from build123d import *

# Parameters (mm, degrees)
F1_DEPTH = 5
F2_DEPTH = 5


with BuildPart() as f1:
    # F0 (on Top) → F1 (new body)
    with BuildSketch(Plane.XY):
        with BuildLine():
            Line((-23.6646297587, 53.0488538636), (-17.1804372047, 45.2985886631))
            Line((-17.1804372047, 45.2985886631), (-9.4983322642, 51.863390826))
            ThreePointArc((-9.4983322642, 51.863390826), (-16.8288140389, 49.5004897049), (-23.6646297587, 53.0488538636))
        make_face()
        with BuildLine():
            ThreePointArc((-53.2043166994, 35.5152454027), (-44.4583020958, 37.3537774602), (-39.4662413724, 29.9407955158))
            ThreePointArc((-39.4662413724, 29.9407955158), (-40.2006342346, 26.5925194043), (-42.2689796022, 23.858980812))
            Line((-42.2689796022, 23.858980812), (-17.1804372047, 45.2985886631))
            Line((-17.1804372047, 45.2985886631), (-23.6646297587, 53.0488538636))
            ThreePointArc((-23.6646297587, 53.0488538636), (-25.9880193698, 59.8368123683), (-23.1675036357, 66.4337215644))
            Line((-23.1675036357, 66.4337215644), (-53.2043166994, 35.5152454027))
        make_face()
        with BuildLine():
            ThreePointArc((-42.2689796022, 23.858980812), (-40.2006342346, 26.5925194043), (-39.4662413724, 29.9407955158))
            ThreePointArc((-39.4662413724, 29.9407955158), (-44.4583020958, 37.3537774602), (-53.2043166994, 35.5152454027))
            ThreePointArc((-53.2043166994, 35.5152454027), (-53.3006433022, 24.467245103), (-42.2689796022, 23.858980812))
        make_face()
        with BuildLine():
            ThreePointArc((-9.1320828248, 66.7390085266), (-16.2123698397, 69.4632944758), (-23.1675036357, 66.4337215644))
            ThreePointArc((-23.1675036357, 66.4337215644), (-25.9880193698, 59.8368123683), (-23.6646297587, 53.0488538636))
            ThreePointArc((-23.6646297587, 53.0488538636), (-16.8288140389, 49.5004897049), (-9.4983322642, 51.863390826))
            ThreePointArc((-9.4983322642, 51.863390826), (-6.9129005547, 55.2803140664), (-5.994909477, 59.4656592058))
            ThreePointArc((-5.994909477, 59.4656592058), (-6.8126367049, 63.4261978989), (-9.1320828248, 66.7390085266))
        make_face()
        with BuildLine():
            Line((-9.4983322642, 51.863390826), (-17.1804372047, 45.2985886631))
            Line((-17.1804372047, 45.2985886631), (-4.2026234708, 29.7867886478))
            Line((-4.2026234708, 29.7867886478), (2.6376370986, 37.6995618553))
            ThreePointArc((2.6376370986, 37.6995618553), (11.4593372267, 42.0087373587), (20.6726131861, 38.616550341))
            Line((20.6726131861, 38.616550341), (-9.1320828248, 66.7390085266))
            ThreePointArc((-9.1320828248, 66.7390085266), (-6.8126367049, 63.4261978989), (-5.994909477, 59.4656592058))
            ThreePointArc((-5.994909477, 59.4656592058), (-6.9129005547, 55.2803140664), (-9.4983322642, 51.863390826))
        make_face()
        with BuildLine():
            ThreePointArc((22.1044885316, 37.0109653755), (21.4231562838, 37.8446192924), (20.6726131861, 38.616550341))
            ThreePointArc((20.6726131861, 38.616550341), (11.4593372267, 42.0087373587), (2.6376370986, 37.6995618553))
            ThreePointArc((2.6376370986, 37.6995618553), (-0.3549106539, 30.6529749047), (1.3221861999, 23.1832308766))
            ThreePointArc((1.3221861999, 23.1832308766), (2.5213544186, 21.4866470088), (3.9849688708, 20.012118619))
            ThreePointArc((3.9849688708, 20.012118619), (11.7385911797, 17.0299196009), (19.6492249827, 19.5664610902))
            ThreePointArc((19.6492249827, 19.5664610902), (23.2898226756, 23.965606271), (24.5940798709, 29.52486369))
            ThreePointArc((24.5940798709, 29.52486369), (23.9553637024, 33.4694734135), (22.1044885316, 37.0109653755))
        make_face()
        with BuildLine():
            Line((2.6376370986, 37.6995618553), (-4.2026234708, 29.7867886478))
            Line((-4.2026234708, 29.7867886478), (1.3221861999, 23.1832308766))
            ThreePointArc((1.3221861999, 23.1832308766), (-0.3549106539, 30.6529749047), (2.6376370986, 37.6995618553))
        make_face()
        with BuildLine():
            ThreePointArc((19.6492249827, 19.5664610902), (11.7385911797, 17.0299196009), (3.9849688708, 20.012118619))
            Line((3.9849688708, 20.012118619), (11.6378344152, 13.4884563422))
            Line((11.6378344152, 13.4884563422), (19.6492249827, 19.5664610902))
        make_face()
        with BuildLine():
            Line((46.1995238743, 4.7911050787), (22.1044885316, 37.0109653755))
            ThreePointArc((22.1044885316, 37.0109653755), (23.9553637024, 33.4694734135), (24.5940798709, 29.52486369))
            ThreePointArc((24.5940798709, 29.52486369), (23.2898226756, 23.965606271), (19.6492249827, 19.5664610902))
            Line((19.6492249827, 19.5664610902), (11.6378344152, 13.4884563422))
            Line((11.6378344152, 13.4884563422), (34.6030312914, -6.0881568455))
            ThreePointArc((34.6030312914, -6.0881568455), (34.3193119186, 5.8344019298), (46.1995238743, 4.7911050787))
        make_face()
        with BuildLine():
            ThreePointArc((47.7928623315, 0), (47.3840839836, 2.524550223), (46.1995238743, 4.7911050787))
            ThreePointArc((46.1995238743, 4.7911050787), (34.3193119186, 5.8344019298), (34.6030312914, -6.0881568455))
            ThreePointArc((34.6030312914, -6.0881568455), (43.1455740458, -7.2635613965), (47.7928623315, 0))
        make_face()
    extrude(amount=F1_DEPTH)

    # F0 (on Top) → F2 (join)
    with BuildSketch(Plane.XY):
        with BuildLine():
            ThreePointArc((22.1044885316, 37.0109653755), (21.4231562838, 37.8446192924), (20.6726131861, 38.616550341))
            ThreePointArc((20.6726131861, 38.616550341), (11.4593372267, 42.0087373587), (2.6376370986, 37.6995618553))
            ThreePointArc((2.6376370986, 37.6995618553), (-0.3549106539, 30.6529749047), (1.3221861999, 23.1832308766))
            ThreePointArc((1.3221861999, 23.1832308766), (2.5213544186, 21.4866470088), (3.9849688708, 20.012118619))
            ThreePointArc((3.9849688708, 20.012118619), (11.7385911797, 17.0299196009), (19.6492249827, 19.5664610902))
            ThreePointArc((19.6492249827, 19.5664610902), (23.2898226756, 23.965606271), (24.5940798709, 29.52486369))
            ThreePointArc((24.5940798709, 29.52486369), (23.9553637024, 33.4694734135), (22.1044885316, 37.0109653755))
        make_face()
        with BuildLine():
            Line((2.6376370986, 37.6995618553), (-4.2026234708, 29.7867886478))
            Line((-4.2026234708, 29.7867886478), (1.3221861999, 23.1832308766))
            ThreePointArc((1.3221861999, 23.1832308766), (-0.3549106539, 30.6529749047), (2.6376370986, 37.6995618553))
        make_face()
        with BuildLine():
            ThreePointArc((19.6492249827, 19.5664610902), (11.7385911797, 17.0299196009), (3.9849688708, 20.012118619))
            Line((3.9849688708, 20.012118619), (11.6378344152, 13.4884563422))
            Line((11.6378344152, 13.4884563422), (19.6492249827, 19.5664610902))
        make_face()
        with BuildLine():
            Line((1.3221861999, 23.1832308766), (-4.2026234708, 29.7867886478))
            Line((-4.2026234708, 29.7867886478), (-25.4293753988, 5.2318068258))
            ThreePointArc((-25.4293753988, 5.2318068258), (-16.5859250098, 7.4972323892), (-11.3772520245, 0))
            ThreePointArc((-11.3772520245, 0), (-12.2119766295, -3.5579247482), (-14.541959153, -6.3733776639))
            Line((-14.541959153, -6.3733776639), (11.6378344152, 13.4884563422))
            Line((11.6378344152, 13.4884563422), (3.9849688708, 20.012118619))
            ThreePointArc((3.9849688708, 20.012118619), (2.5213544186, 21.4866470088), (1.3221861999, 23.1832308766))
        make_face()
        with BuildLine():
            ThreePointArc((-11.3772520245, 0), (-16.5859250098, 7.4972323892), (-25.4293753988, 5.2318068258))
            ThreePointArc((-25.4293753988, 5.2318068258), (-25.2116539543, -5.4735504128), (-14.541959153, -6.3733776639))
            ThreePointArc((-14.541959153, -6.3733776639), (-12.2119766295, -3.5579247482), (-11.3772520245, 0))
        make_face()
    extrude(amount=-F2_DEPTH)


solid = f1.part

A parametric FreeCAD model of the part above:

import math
import FreeCAD as App
import Part
import Sketcher
Q = App.Units.Quantity

doc = App.newDocument("Part")
params = doc.addObject("Spreadsheet::Sheet", "Params")
for row, (alias, value) in enumerate([
    ("sketch1_radius", "8 mm"),
    ("sketch1_radius2", "10 mm"),
    ("sketch1_radius3", "12.5 mm"),
    ("pad1_length", "5 mm"),
    ("sketch2_radius", "8 mm"),
    ("sketch2_radius2", "12.5 mm"),
    ("pad2_length", "5 mm"),
], start=1):
    params.set(f"A{row}", alias)
    params.set(f"B{row}", "=" + value)
    params.setAlias(f"B{row}", alias)

body = doc.addObject("PartDesign::Body", "Body")

# Sketch on XY plane
sketch1 = doc.addObject("Sketcher::SketchObject", "Sketch")
body.addObject(sketch1)
sketch1.AttachmentSupport = (doc.XY_Plane, [""])
sketch1.MapMode = "FlatFace"
sketch1.addGeometry(Part.LineSegment(App.Vector(-23.2, 66.4, 0), App.Vector(-53.2, 35.5, 0)), False)
sketch1.addGeometry(Part.ArcOfCircle(Part.Circle(App.Vector(-47.5, 29.9, 0), App.Vector(0, 0, 1), 8), math.radians(136), math.radians(311)), False)
sketch1.addGeometry(Part.LineSegment(App.Vector(-42.3, 23.9, 0), App.Vector(-17.2, 45.3, 0)), False)
sketch1.addGeometry(Part.LineSegment(App.Vector(-17.2, 45.3, 0), App.Vector(-4.2, 29.8, 0)), False)
sketch1.addGeometry(Part.LineSegment(App.Vector(-4.2, 29.8, 0), App.Vector(1.3, 23.2, 0)), False)
sketch1.addGeometry(Part.ArcOfCircle(Part.Circle(App.Vector(12.1, 29.5, 0), App.Vector(0, 0, 1), 12.5), math.radians(-149.51), math.radians(-130.45)), False)
sketch1.addGeometry(Part.LineSegment(App.Vector(4, 20, 0), App.Vector(11.6, 13.5, 0)), False)
sketch1.addGeometry(Part.LineSegment(App.Vector(11.6, 13.5, 0), App.Vector(34.6, -6.1, 0)), False)
sketch1.addGeometry(Part.ArcOfCircle(Part.Circle(App.Vector(39.8, 0, 0), App.Vector(0, 0, 1), 8), math.radians(-130), math.radians(0)), False)
sketch1.addGeometry(Part.ArcOfCircle(Part.Circle(App.Vector(39.8, 0, 0), App.Vector(0, 0, 1), 8), math.radians(0), math.radians(37)), False)
sketch1.addGeometry(Part.LineSegment(App.Vector(46.2, 4.8, 0), App.Vector(22.1, 37, 0)), False)
sketch1.addGeometry(Part.ArcOfCircle(Part.Circle(App.Vector(12.1, 29.5, 0), App.Vector(0, 0, 1), 12.5), math.radians(36.79), math.radians(46.66)), False)
sketch1.addGeometry(Part.LineSegment(App.Vector(20.7, 38.6, 0), App.Vector(-9.1, 66.7, 0)), False)
sketch1.addGeometry(Part.ArcOfCircle(Part.Circle(App.Vector(-16, 59.5, 0), App.Vector(0, 0, 1), 10), math.radians(47), math.radians(136)), False)
sketch1.addConstraint(Sketcher.Constraint("Tangent", 0, 2, 1, 1))
sketch1.addConstraint(Sketcher.Constraint("Tangent", 1, 2, 2, 1))
sketch1.addConstraint(Sketcher.Constraint("Coincident", 2, 2, 3, 1))
sketch1.addConstraint(Sketcher.Constraint("Coincident", 3, 2, 4, 1))
sketch1.addConstraint(Sketcher.Constraint("Coincident", 4, 2, 5, 1))
sketch1.addConstraint(Sketcher.Constraint("Tangent", 5, 2, 6, 1))
sketch1.addConstraint(Sketcher.Constraint("Coincident", 6, 2, 7, 1))
sketch1.addConstraint(Sketcher.Constraint("Tangent", 7, 2, 8, 1))
sketch1.addConstraint(Sketcher.Constraint("Tangent", 8, 2, 9, 1))
sketch1.addConstraint(Sketcher.Constraint("Tangent", 9, 2, 10, 1))
sketch1.addConstraint(Sketcher.Constraint("Tangent", 10, 2, 11, 1))
sketch1.addConstraint(Sketcher.Constraint("Tangent", 11, 2, 12, 1))
sketch1.addConstraint(Sketcher.Constraint("Tangent", 12, 2, 13, 1))
sketch1.addConstraint(Sketcher.Constraint("Tangent", 13, 2, 0, 1))
sketch1.addConstraint(Sketcher.Constraint("Coincident", 11, 3, 5, 3))
sketch1.addConstraint(Sketcher.Constraint("Equal", 1, 8))
sketch1.addConstraint(Sketcher.Constraint("Equal", 8, 9))
sketch1.addConstraint(Sketcher.Constraint("Equal", 5, 11))
sketch1.addConstraint(Sketcher.Constraint("PointOnObject", 8, 3, -1))
sketch1.addConstraint(Sketcher.Constraint("PointOnObject", 8, 2, -1))
sketch1.addConstraint(Sketcher.Constraint("Parallel", 3, 4))
sketch1.addConstraint(Sketcher.Constraint("Parallel", 6, 7))
sketch1.addConstraint(Sketcher.Constraint("Radius", 1, Q("8 mm")))
sketch1.addConstraint(Sketcher.Constraint("Radius", 13, Q("10 mm")))
sketch1.addConstraint(Sketcher.Constraint("Radius", 5, Q("12.5 mm")))
sketch1.addConstraint(Sketcher.Constraint("DistanceY", 3, 2, 2, 2, Q("15.5118 mm")))
sketch1.addConstraint(Sketcher.Constraint("DistanceY", 11, 3, 10, 2, Q("7.486102 mm")))
sketch1.addConstraint(Sketcher.Constraint("Distance", 2, Q("33.00139 mm")))
sketch1.addConstraint(Sketcher.Constraint("Distance", 6, Q("10.056069 mm")))
sketch1.addConstraint(Sketcher.Constraint("Distance", 7, Q("30.176879 mm")))
sketch1.addConstraint(Sketcher.Constraint("DistanceX", 1, 3, -1, 1, Q("47.466241 mm")))
sketch1.addConstraint(Sketcher.Constraint("DistanceX", -1, 1, 5, 3, Q("12.09408 mm")))
sketch1.addConstraint(Sketcher.Constraint("DistanceX", 13, 3, -1, 1, Q("15.994909 mm")))
sketch1.addConstraint(Sketcher.Constraint("DistanceY", -1, 1, 13, 3, Q("59.465659 mm")))
sketch1.addConstraint(Sketcher.Constraint("DistanceX", 1, 2, -1, 1, Q("42.26898 mm")))
sketch1.addConstraint(Sketcher.Constraint("DistanceY", -1, 1, 1, 2, Q("23.858981 mm")))
sketch1.addConstraint(Sketcher.Constraint("DistanceY", -1, 1, 4, 2, Q("23.183231 mm")))
sketch1.setExpression("Constraints[22]", "Params.sketch1_radius")
sketch1.setExpression("Constraints[23]", "Params.sketch1_radius2")
sketch1.setExpression("Constraints[24]", "Params.sketch1_radius3")
pad1 = doc.addObject("PartDesign::Pad", "Pad")
body.addObject(pad1)
pad1.Profile = sketch1
pad1.setExpression("Length", "Params.pad1_length")

# Sketch on XY plane
sketch2 = doc.addObject("Sketcher::SketchObject", "Sketch001")
body.addObject(sketch2)
sketch2.AttachmentSupport = (doc.XY_Plane, [""])
sketch2.MapMode = "FlatFace"
sketch2.addGeometry(Part.ArcOfCircle(Part.Circle(App.Vector(12.1, 29.5, 0), App.Vector(0, 0, 1), 12.5), math.radians(36.79), math.radians(46.66)), False)
sketch2.addGeometry(Part.ArcOfCircle(Part.Circle(App.Vector(12.1, 29.5, 0), App.Vector(0, 0, 1), 12.5), math.radians(47), math.radians(139)), False)
sketch2.addGeometry(Part.LineSegment(App.Vector(2.6, 37.7, 0), App.Vector(-4.2, 29.8, 0)), False)
sketch2.addGeometry(Part.LineSegment(App.Vector(-4.2, 29.8, 0), App.Vector(-25.4, 5.2, 0)), False)
sketch2.addGeometry(Part.ArcOfCircle(Part.Circle(App.Vector(-19.4, 0, 0), App.Vector(0, 0, 1), 8), math.radians(139), math.radians(307)), False)
sketch2.addGeometry(Part.LineSegment(App.Vector(-14.5, -6.4, 0), App.Vector(11.6, 13.5, 0)), False)
sketch2.addGeometry(Part.LineSegment(App.Vector(11.6, 13.5, 0), App.Vector(19.6, 19.6, 0)), False)
sketch2.addGeometry(Part.ArcOfCircle(Part.Circle(App.Vector(12.1, 29.5, 0), App.Vector(0, 0, 1), 12.5), math.radians(-53), math.radians(0)), False)
sketch2.addGeometry(Part.ArcOfCircle(Part.Circle(App.Vector(12.1, 29.5, 0), App.Vector(0, 0, 1), 12.5), math.radians(0), math.radians(37)), False)
sketch2.addConstraint(Sketcher.Constraint("Tangent", 0, 2, 1, 1))
sketch2.addConstraint(Sketcher.Constraint("Tangent", 1, 2, 2, 1))
sketch2.addConstraint(Sketcher.Constraint("Coincident", 2, 2, 3, 1))
sketch2.addConstraint(Sketcher.Constraint("Tangent", 3, 2, 4, 1))
sketch2.addConstraint(Sketcher.Constraint("Tangent", 4, 2, 5, 1))
sketch2.addConstraint(Sketcher.Constraint("Coincident", 5, 2, 6, 1))
sketch2.addConstraint(Sketcher.Constraint("Tangent", 6, 2, 7, 1))
sketch2.addConstraint(Sketcher.Constraint("Tangent", 7, 2, 8, 1))
sketch2.addConstraint(Sketcher.Constraint("Tangent", 8, 2, 0, 1))
sketch2.addConstraint(Sketcher.Constraint("Coincident", 7, 3, 0, 3))
sketch2.addConstraint(Sketcher.Constraint("Equal", 0, 1))
sketch2.addConstraint(Sketcher.Constraint("PointOnObject", 4, 3, -1))
sketch2.addConstraint(Sketcher.Constraint("Parallel", 2, 3))
sketch2.addConstraint(Sketcher.Constraint("Parallel", 5, 6))
sketch2.addConstraint(Sketcher.Constraint("Horizontal", 8, 3, 7, 2))
sketch2.addConstraint(Sketcher.Constraint("Radius", 4, Q("8 mm")))
sketch2.addConstraint(Sketcher.Constraint("Radius", 0, Q("12.5 mm")))
sketch2.addConstraint(Sketcher.Constraint("Distance", 2, Q("10.4595 mm")))
sketch2.addConstraint(Sketcher.Constraint("DistanceY", 1, 3, 1, 2, Q("8.174698 mm")))
sketch2.addConstraint(Sketcher.Constraint("DistanceY", 7, 2, 8, 2, Q("7.486102 mm")))
sketch2.addConstraint(Sketcher.Constraint("Distance", 6, Q("10.056069 mm")))
sketch2.addConstraint(Sketcher.Constraint("DistanceX", -1, 1, 0, 3, Q("12.09408 mm")))
sketch2.addConstraint(Sketcher.Constraint("DistanceY", -1, 1, 0, 2, Q("38.61655 mm")))
sketch2.addConstraint(Sketcher.Constraint("DistanceY", -1, 1, 1, 2, Q("37.699562 mm")))
sketch2.setExpression("Constraints[15]", "Params.sketch2_radius")
sketch2.setExpression("Constraints[16]", "Params.sketch2_radius2")
pad2 = doc.addObject("PartDesign::Pad", "Pad001")
body.addObject(pad2)
pad2.Profile = sketch2
pad2.setExpression("Length", "Params.pad2_length")
pad2.Reversed = True

doc.recompute()
